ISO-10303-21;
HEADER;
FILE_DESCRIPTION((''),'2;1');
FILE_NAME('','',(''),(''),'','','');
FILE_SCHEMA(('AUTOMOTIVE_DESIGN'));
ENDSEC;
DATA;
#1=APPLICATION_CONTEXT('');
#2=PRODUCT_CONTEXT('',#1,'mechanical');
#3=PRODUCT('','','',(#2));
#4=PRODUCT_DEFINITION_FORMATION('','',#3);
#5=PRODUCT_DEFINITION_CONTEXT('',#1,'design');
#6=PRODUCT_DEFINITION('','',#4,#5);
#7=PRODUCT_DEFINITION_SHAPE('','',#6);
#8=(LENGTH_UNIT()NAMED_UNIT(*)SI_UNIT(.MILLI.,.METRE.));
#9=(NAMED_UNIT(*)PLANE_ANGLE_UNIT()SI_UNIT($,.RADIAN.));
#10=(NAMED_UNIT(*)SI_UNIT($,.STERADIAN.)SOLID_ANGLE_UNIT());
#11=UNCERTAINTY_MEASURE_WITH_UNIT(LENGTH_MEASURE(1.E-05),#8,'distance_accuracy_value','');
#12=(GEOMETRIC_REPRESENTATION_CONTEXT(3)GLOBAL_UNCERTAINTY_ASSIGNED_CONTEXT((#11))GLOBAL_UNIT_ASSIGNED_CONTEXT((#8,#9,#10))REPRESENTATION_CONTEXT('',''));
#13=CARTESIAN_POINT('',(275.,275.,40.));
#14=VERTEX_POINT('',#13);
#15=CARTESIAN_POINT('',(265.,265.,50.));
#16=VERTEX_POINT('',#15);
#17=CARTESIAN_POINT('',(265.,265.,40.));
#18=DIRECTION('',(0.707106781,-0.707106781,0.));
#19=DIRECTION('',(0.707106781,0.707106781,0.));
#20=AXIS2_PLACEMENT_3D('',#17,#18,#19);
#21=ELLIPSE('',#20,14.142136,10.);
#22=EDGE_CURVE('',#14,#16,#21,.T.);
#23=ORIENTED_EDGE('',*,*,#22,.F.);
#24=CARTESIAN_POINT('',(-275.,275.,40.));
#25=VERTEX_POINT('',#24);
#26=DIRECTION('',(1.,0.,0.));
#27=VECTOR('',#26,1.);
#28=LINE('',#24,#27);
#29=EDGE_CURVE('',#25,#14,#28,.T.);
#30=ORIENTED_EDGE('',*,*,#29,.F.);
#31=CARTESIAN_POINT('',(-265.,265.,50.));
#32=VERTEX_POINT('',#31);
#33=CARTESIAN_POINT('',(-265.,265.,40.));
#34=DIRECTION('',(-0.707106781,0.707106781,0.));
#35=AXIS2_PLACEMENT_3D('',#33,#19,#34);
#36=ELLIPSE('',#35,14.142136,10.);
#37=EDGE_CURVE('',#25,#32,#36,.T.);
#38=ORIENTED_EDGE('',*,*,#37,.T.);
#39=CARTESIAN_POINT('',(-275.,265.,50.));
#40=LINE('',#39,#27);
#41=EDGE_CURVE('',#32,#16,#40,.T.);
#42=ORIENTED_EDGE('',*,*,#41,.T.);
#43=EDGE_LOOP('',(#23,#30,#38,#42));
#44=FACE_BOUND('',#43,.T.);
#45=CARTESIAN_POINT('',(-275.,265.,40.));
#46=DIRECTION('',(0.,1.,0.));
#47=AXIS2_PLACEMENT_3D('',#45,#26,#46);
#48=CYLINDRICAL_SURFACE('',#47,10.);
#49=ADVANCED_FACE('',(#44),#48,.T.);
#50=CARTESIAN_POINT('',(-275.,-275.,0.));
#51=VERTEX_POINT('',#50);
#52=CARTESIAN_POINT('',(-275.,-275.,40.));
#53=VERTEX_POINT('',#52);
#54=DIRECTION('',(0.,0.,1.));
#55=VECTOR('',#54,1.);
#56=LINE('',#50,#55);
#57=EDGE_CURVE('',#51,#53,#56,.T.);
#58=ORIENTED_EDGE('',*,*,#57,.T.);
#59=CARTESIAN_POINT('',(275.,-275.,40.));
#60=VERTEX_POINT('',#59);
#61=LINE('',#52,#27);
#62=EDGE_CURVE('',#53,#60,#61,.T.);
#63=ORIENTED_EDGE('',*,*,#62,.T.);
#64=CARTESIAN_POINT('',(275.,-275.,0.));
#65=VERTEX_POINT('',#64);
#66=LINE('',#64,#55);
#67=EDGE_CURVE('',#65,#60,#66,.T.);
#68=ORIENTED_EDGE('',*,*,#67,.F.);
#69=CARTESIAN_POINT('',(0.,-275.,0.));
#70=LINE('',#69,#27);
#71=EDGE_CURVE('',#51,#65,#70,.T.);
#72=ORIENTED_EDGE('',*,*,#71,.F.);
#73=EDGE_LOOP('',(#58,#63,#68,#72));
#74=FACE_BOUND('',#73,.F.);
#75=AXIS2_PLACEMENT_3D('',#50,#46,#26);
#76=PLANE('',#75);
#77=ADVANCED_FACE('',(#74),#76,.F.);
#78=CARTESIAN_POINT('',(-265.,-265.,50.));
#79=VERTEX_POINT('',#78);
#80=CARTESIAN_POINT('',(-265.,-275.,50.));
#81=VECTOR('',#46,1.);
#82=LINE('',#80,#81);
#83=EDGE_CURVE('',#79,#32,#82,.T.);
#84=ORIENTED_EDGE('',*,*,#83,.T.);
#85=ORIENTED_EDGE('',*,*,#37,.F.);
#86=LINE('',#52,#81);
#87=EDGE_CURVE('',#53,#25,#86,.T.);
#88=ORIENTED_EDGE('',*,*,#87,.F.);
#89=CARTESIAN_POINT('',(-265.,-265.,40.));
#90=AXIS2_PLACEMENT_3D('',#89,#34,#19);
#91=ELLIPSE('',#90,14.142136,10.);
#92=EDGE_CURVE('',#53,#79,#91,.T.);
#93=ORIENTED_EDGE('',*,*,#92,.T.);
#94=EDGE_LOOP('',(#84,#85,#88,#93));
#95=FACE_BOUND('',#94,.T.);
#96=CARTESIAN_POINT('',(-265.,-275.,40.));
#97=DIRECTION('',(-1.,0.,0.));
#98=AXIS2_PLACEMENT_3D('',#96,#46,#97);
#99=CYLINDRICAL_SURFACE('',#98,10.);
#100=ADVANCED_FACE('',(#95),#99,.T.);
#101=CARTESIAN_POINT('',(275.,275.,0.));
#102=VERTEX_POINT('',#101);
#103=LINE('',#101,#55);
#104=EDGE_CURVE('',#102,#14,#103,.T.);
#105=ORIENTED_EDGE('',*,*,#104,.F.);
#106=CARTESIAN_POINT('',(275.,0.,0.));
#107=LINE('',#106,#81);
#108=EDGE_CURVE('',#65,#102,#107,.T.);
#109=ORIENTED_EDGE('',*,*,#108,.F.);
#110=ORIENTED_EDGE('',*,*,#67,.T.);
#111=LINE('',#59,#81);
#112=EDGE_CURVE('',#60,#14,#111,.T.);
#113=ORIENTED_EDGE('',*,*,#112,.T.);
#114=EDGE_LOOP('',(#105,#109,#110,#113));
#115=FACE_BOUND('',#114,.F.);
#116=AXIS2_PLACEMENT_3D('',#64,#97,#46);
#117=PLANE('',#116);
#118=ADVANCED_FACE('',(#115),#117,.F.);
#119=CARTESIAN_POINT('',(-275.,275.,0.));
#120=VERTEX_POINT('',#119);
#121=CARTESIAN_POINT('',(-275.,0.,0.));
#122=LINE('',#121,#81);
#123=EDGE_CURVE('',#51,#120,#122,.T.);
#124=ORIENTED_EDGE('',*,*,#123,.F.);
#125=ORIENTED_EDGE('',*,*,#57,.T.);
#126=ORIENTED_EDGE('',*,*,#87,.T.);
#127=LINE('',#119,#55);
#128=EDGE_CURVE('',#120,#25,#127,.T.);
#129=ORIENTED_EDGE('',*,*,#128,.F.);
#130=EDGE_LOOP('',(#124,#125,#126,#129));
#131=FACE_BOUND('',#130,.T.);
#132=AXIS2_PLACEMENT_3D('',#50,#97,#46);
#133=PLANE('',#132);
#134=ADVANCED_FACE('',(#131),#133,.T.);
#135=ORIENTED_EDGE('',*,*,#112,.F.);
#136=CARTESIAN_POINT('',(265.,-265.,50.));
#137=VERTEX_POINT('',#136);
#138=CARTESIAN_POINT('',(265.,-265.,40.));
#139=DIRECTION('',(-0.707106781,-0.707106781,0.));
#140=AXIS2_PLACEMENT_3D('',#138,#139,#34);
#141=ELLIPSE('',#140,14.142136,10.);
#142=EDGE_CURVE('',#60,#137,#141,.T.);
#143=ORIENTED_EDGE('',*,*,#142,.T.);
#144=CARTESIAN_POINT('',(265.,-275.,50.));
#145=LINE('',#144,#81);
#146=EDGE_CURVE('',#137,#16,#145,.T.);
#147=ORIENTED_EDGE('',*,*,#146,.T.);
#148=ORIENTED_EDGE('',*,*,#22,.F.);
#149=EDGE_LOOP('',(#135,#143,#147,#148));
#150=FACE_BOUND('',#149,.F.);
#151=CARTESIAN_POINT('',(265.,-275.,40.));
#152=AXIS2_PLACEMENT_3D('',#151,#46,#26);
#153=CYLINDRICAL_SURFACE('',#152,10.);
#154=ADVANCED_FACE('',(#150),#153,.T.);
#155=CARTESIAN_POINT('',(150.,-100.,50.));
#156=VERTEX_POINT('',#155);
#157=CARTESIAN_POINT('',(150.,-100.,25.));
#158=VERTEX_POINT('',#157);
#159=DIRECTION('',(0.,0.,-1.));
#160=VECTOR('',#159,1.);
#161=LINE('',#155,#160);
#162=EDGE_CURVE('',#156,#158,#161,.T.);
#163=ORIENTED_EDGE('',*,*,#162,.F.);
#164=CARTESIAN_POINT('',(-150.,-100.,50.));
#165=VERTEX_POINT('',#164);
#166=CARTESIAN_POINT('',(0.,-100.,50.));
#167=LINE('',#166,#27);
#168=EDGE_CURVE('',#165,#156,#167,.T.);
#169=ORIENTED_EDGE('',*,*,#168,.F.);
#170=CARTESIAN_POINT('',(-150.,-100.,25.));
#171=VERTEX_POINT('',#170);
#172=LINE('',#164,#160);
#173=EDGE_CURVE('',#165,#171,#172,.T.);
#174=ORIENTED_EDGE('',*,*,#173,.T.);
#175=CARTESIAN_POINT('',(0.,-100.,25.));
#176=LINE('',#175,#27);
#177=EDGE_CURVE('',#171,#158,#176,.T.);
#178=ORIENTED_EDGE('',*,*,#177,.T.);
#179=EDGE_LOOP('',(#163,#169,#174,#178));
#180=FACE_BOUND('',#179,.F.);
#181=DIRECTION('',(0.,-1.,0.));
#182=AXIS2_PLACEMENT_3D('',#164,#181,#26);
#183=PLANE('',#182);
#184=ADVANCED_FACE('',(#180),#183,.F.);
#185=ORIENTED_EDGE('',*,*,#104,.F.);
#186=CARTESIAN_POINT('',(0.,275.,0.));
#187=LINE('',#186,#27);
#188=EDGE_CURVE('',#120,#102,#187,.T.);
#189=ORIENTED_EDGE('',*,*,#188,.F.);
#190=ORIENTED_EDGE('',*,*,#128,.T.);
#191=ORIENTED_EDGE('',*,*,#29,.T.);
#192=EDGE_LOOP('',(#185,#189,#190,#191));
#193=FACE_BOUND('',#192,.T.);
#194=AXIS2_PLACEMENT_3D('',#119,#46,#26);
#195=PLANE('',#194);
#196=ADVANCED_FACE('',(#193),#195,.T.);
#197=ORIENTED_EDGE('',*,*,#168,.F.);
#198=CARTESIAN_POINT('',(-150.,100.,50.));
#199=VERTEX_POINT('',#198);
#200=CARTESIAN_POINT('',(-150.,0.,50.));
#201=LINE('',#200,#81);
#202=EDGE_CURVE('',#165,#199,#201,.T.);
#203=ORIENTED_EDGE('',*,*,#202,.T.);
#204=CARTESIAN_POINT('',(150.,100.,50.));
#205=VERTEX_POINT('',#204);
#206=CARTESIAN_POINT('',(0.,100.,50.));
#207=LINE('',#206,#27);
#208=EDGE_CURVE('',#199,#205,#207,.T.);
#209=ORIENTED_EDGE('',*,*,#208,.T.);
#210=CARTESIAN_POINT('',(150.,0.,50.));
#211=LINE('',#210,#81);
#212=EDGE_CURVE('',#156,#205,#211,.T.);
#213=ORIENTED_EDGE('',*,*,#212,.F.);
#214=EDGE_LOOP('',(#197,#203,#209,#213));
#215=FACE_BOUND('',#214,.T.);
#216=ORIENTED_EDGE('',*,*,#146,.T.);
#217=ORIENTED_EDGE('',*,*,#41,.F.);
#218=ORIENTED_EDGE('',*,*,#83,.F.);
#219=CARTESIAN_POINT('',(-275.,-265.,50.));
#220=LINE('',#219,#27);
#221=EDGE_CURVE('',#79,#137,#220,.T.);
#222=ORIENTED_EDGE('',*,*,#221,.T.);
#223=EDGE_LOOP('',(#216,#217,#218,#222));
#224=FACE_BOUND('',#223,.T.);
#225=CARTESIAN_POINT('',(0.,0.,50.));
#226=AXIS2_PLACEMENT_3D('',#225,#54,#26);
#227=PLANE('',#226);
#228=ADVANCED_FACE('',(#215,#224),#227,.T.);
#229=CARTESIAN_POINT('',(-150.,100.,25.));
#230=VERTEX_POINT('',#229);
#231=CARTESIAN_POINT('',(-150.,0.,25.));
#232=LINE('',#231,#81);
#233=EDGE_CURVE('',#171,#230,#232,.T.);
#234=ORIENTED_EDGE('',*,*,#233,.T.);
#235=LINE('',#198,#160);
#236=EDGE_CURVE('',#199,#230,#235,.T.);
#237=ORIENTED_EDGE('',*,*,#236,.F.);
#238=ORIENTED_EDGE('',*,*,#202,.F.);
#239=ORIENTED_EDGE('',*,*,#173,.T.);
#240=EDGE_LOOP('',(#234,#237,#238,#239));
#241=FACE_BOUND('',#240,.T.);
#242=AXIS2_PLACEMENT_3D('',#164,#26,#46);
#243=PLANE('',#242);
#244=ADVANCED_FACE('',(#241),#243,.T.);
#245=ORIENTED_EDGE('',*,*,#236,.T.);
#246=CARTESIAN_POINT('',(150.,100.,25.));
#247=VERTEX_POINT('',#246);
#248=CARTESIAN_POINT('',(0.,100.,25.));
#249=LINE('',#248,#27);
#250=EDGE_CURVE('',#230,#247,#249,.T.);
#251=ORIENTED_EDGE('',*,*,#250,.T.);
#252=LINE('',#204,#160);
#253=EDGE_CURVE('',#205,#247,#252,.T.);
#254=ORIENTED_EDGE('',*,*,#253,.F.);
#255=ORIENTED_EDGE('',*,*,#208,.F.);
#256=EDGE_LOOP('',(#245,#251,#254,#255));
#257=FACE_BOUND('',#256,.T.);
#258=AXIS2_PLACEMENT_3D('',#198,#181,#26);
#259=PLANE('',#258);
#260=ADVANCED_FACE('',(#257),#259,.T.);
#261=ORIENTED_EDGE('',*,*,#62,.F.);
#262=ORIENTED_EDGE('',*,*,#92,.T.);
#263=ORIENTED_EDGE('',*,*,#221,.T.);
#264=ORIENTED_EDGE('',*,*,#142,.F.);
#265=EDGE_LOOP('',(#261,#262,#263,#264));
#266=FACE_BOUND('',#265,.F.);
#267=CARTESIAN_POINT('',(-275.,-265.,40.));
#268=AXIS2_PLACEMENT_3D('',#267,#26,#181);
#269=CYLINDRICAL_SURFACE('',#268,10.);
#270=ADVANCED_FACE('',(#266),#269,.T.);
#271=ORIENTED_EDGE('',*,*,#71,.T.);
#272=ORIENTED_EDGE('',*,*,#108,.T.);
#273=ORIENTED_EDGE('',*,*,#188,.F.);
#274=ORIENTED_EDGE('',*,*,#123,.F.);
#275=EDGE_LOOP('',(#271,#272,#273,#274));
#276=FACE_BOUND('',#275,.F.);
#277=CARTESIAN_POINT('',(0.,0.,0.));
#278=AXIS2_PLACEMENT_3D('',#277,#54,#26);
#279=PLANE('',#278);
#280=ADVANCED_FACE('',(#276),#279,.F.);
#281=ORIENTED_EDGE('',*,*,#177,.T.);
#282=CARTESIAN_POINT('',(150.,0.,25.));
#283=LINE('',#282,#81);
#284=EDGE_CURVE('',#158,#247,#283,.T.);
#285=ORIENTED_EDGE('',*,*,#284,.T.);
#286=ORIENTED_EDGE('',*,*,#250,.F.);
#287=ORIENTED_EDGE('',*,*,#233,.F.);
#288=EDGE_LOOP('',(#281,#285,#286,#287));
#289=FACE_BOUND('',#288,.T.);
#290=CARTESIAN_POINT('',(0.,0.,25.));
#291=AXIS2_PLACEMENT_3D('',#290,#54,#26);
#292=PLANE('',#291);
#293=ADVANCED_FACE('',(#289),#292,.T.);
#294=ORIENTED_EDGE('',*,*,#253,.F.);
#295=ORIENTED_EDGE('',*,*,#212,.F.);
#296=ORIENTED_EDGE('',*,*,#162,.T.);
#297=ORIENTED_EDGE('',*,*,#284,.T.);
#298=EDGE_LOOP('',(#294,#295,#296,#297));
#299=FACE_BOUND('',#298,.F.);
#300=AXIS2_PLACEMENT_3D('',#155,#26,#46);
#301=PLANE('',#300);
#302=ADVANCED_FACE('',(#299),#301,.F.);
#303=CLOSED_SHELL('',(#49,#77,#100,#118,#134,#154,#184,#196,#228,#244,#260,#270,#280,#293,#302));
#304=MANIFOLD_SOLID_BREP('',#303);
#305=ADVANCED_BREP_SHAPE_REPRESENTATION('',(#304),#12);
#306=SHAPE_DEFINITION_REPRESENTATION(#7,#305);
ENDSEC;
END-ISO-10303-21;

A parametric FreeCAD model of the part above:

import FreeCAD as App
import Part
import Sketcher
Q = App.Units.Quantity


def edges_at(feature, points):
    """Names of the edges that pass closest to the given points."""
    edges = feature.Shape.Edges
    near = lambda p: min(range(len(edges)), key=lambda i: edges[i].distToShape(Part.Vertex(*p))[0])
    return sorted({f"Edge{near(p) + 1}" for p in points})

doc = App.newDocument("Part")
params = doc.addObject("Spreadsheet::Sheet", "Params")
for row, (alias, value) in enumerate([
    ("sketch1_width", "550 mm"),
    ("pad1_length", "50 mm"),
    ("fillet_radius", "10 mm"),
    ("sketch2_width", "300 mm"),
    ("sketch2_height", "200 mm"),
    ("pad2_length", "25 mm"),
    ("sketch3_width", "300 mm"),
    ("sketch3_height", "200 mm"),
    ("pocket1_length", "25 mm"),
], start=1):
    params.set(f"A{row}", alias)
    params.set(f"B{row}", "=" + value)
    params.setAlias(f"B{row}", alias)

body = doc.addObject("PartDesign::Body", "Body")

# Sketch on XY plane
sketch1 = body.newObject("Sketcher::SketchObject", "Sketch")
sketch1.AttachmentSupport = (doc.getObject("XY_Plane"), [""])
sketch1.MapMode = "FlatFace"
sketch1.addGeometry([
    Part.LineSegment(App.Vector(-275, 275, 0), App.Vector(-275, -275, 0)),
    Part.LineSegment(App.Vector(-275, -275, 0), App.Vector(275, -275, 0)),
    Part.LineSegment(App.Vector(275, -275, 0), App.Vector(275, 275, 0)),
    Part.LineSegment(App.Vector(275, 275, 0), App.Vector(-275, 275, 0)),
], False)
sketch1.addConstraint([
    Sketcher.Constraint("Coincident", 0, 2, 1, 1),
    Sketcher.Constraint("Coincident", 1, 2, 2, 1),
    Sketcher.Constraint("Coincident", 2, 2, 3, 1),
    Sketcher.Constraint("Coincident", 3, 2, 0, 1),
    Sketcher.Constraint("Vertical", 0),
    Sketcher.Constraint("Horizontal", 1),
    Sketcher.Constraint("Vertical", 2),
    Sketcher.Constraint("Horizontal", 3),
    Sketcher.Constraint("Symmetric", 0, 2, 2, 2, -1, 1),
    Sketcher.Constraint("Equal", 3, 0),
    Sketcher.Constraint("DistanceX", 1, 1, 1, 2, Q("550 mm")),
])
sketch1.setExpression("Constraints[10]", "Params.sketch1_width")
pad1 = body.newObject("PartDesign::Pad", "Pad")
pad1.Profile = sketch1
pad1.setExpression("Length", "Params.pad1_length")
doc.recompute()

fillet = body.newObject("PartDesign::Fillet", "Fillet")
fillet.Base = (pad1, edges_at(pad1, [
    (-275, 0, 50),
    (0, 275, 50),
    (275, 0, 50),
    (0, -275, 50),
]))
fillet.setExpression("Radius", "Params.fillet_radius")

# Sketch on XY plane
sketch2 = body.newObject("Sketcher::SketchObject", "Sketch001")
sketch2.AttachmentSupport = (doc.getObject("XY_Plane"), [""])
sketch2.MapMode = "FlatFace"
sketch2.AttachmentOffset = App.Placement(App.Vector(0, 0, 50), App.Rotation())
sketch2.addGeometry([
    Part.LineSegment(App.Vector(-150, 100, 0), App.Vector(-150, -100, 0)),
    Part.LineSegment(App.Vector(-150, -100, 0), App.Vector(150, -100, 0)),
    Part.LineSegment(App.Vector(150, -100, 0), App.Vector(150, 100, 0)),
    Part.LineSegment(App.Vector(150, 100, 0), App.Vector(-150, 100, 0)),
], False)
sketch2.addConstraint([
    Sketcher.Constraint("Coincident", 0, 2, 1, 1),
    Sketcher.Constraint("Coincident", 1, 2, 2, 1),
    Sketcher.Constraint("Coincident", 2, 2, 3, 1),
    Sketcher.Constraint("Coincident", 3, 2, 0, 1),
    Sketcher.Constraint("Vertical", 0),
    Sketcher.Constraint("Horizontal", 1),
    Sketcher.Constraint("Vertical", 2),
    Sketcher.Constraint("Horizontal", 3),
    Sketcher.Constraint("Symmetric", 0, 2, 2, 2, -1, 1),
    Sketcher.Constraint("DistanceX", 1, 1, 1, 2, Q("300 mm")),
    Sketcher.Constraint("DistanceY", 0, 2, 0, 1, Q("200 mm")),
])
sketch2.setExpression("Constraints[9]", "Params.sketch2_width")
sketch2.setExpression("Constraints[10]", "Params.sketch2_height")
pad2 = body.newObject("PartDesign::Pad", "Pad001")
pad2.Profile = sketch2
pad2.setExpression("Length", "Params.pad2_length")
pad2.Reversed = True

# Sketch on XY plane
sketch3 = body.newObject("Sketcher::SketchObject", "Sketch002")
sketch3.AttachmentSupport = (doc.getObject("XY_Plane"), [""])
sketch3.MapMode = "FlatFace"
sketch3.AttachmentOffset = App.Placement(App.Vector(0, 0, 50), App.Rotation())
sketch3.addGeometry([
    Part.LineSegment(App.Vector(-150, 100, 0), App.Vector(-150, -100, 0)),
    Part.LineSegment(App.Vector(-150, -100, 0), App.Vector(150, -100, 0)),
    Part.LineSegment(App.Vector(150, -100, 0), App.Vector(150, 100, 0)),
    Part.LineSegment(App.Vector(150, 100, 0), App.Vector(-150, 100, 0)),
], False)
sketch3.addConstraint([
    Sketcher.Constraint("Coincident", 0, 2, 1, 1),
    Sketcher.Constraint("Coincident", 1, 2, 2, 1),
    Sketcher.Constraint("Coincident", 2, 2, 3, 1),
    Sketcher.Constraint("Coincident", 3, 2, 0, 1),
    Sketcher.Constraint("Vertical", 0),
    Sketcher.Constraint("Horizontal", 1),
    Sketcher.Constraint("Vertical", 2),
    Sketcher.Constraint("Horizontal", 3),
    Sketcher.Constraint("Symmetric", 0, 2, 2, 2, -1, 1),
    Sketcher.Constraint("DistanceX", 1, 1, 1, 2, Q("300 mm")),
    Sketcher.Constraint("DistanceY", 0, 2, 0, 1, Q("200 mm")),
])
sketch3.setExpression("Constraints[9]", "Params.sketch3_width")
sketch3.setExpression("Constraints[10]", "Params.sketch3_height")
pocket1 = body.newObject("PartDesign::Pocket", "Pocket")
pocket1.Profile = sketch3
pocket1.setExpression("Length", "Params.pocket1_length")

doc.recompute()
